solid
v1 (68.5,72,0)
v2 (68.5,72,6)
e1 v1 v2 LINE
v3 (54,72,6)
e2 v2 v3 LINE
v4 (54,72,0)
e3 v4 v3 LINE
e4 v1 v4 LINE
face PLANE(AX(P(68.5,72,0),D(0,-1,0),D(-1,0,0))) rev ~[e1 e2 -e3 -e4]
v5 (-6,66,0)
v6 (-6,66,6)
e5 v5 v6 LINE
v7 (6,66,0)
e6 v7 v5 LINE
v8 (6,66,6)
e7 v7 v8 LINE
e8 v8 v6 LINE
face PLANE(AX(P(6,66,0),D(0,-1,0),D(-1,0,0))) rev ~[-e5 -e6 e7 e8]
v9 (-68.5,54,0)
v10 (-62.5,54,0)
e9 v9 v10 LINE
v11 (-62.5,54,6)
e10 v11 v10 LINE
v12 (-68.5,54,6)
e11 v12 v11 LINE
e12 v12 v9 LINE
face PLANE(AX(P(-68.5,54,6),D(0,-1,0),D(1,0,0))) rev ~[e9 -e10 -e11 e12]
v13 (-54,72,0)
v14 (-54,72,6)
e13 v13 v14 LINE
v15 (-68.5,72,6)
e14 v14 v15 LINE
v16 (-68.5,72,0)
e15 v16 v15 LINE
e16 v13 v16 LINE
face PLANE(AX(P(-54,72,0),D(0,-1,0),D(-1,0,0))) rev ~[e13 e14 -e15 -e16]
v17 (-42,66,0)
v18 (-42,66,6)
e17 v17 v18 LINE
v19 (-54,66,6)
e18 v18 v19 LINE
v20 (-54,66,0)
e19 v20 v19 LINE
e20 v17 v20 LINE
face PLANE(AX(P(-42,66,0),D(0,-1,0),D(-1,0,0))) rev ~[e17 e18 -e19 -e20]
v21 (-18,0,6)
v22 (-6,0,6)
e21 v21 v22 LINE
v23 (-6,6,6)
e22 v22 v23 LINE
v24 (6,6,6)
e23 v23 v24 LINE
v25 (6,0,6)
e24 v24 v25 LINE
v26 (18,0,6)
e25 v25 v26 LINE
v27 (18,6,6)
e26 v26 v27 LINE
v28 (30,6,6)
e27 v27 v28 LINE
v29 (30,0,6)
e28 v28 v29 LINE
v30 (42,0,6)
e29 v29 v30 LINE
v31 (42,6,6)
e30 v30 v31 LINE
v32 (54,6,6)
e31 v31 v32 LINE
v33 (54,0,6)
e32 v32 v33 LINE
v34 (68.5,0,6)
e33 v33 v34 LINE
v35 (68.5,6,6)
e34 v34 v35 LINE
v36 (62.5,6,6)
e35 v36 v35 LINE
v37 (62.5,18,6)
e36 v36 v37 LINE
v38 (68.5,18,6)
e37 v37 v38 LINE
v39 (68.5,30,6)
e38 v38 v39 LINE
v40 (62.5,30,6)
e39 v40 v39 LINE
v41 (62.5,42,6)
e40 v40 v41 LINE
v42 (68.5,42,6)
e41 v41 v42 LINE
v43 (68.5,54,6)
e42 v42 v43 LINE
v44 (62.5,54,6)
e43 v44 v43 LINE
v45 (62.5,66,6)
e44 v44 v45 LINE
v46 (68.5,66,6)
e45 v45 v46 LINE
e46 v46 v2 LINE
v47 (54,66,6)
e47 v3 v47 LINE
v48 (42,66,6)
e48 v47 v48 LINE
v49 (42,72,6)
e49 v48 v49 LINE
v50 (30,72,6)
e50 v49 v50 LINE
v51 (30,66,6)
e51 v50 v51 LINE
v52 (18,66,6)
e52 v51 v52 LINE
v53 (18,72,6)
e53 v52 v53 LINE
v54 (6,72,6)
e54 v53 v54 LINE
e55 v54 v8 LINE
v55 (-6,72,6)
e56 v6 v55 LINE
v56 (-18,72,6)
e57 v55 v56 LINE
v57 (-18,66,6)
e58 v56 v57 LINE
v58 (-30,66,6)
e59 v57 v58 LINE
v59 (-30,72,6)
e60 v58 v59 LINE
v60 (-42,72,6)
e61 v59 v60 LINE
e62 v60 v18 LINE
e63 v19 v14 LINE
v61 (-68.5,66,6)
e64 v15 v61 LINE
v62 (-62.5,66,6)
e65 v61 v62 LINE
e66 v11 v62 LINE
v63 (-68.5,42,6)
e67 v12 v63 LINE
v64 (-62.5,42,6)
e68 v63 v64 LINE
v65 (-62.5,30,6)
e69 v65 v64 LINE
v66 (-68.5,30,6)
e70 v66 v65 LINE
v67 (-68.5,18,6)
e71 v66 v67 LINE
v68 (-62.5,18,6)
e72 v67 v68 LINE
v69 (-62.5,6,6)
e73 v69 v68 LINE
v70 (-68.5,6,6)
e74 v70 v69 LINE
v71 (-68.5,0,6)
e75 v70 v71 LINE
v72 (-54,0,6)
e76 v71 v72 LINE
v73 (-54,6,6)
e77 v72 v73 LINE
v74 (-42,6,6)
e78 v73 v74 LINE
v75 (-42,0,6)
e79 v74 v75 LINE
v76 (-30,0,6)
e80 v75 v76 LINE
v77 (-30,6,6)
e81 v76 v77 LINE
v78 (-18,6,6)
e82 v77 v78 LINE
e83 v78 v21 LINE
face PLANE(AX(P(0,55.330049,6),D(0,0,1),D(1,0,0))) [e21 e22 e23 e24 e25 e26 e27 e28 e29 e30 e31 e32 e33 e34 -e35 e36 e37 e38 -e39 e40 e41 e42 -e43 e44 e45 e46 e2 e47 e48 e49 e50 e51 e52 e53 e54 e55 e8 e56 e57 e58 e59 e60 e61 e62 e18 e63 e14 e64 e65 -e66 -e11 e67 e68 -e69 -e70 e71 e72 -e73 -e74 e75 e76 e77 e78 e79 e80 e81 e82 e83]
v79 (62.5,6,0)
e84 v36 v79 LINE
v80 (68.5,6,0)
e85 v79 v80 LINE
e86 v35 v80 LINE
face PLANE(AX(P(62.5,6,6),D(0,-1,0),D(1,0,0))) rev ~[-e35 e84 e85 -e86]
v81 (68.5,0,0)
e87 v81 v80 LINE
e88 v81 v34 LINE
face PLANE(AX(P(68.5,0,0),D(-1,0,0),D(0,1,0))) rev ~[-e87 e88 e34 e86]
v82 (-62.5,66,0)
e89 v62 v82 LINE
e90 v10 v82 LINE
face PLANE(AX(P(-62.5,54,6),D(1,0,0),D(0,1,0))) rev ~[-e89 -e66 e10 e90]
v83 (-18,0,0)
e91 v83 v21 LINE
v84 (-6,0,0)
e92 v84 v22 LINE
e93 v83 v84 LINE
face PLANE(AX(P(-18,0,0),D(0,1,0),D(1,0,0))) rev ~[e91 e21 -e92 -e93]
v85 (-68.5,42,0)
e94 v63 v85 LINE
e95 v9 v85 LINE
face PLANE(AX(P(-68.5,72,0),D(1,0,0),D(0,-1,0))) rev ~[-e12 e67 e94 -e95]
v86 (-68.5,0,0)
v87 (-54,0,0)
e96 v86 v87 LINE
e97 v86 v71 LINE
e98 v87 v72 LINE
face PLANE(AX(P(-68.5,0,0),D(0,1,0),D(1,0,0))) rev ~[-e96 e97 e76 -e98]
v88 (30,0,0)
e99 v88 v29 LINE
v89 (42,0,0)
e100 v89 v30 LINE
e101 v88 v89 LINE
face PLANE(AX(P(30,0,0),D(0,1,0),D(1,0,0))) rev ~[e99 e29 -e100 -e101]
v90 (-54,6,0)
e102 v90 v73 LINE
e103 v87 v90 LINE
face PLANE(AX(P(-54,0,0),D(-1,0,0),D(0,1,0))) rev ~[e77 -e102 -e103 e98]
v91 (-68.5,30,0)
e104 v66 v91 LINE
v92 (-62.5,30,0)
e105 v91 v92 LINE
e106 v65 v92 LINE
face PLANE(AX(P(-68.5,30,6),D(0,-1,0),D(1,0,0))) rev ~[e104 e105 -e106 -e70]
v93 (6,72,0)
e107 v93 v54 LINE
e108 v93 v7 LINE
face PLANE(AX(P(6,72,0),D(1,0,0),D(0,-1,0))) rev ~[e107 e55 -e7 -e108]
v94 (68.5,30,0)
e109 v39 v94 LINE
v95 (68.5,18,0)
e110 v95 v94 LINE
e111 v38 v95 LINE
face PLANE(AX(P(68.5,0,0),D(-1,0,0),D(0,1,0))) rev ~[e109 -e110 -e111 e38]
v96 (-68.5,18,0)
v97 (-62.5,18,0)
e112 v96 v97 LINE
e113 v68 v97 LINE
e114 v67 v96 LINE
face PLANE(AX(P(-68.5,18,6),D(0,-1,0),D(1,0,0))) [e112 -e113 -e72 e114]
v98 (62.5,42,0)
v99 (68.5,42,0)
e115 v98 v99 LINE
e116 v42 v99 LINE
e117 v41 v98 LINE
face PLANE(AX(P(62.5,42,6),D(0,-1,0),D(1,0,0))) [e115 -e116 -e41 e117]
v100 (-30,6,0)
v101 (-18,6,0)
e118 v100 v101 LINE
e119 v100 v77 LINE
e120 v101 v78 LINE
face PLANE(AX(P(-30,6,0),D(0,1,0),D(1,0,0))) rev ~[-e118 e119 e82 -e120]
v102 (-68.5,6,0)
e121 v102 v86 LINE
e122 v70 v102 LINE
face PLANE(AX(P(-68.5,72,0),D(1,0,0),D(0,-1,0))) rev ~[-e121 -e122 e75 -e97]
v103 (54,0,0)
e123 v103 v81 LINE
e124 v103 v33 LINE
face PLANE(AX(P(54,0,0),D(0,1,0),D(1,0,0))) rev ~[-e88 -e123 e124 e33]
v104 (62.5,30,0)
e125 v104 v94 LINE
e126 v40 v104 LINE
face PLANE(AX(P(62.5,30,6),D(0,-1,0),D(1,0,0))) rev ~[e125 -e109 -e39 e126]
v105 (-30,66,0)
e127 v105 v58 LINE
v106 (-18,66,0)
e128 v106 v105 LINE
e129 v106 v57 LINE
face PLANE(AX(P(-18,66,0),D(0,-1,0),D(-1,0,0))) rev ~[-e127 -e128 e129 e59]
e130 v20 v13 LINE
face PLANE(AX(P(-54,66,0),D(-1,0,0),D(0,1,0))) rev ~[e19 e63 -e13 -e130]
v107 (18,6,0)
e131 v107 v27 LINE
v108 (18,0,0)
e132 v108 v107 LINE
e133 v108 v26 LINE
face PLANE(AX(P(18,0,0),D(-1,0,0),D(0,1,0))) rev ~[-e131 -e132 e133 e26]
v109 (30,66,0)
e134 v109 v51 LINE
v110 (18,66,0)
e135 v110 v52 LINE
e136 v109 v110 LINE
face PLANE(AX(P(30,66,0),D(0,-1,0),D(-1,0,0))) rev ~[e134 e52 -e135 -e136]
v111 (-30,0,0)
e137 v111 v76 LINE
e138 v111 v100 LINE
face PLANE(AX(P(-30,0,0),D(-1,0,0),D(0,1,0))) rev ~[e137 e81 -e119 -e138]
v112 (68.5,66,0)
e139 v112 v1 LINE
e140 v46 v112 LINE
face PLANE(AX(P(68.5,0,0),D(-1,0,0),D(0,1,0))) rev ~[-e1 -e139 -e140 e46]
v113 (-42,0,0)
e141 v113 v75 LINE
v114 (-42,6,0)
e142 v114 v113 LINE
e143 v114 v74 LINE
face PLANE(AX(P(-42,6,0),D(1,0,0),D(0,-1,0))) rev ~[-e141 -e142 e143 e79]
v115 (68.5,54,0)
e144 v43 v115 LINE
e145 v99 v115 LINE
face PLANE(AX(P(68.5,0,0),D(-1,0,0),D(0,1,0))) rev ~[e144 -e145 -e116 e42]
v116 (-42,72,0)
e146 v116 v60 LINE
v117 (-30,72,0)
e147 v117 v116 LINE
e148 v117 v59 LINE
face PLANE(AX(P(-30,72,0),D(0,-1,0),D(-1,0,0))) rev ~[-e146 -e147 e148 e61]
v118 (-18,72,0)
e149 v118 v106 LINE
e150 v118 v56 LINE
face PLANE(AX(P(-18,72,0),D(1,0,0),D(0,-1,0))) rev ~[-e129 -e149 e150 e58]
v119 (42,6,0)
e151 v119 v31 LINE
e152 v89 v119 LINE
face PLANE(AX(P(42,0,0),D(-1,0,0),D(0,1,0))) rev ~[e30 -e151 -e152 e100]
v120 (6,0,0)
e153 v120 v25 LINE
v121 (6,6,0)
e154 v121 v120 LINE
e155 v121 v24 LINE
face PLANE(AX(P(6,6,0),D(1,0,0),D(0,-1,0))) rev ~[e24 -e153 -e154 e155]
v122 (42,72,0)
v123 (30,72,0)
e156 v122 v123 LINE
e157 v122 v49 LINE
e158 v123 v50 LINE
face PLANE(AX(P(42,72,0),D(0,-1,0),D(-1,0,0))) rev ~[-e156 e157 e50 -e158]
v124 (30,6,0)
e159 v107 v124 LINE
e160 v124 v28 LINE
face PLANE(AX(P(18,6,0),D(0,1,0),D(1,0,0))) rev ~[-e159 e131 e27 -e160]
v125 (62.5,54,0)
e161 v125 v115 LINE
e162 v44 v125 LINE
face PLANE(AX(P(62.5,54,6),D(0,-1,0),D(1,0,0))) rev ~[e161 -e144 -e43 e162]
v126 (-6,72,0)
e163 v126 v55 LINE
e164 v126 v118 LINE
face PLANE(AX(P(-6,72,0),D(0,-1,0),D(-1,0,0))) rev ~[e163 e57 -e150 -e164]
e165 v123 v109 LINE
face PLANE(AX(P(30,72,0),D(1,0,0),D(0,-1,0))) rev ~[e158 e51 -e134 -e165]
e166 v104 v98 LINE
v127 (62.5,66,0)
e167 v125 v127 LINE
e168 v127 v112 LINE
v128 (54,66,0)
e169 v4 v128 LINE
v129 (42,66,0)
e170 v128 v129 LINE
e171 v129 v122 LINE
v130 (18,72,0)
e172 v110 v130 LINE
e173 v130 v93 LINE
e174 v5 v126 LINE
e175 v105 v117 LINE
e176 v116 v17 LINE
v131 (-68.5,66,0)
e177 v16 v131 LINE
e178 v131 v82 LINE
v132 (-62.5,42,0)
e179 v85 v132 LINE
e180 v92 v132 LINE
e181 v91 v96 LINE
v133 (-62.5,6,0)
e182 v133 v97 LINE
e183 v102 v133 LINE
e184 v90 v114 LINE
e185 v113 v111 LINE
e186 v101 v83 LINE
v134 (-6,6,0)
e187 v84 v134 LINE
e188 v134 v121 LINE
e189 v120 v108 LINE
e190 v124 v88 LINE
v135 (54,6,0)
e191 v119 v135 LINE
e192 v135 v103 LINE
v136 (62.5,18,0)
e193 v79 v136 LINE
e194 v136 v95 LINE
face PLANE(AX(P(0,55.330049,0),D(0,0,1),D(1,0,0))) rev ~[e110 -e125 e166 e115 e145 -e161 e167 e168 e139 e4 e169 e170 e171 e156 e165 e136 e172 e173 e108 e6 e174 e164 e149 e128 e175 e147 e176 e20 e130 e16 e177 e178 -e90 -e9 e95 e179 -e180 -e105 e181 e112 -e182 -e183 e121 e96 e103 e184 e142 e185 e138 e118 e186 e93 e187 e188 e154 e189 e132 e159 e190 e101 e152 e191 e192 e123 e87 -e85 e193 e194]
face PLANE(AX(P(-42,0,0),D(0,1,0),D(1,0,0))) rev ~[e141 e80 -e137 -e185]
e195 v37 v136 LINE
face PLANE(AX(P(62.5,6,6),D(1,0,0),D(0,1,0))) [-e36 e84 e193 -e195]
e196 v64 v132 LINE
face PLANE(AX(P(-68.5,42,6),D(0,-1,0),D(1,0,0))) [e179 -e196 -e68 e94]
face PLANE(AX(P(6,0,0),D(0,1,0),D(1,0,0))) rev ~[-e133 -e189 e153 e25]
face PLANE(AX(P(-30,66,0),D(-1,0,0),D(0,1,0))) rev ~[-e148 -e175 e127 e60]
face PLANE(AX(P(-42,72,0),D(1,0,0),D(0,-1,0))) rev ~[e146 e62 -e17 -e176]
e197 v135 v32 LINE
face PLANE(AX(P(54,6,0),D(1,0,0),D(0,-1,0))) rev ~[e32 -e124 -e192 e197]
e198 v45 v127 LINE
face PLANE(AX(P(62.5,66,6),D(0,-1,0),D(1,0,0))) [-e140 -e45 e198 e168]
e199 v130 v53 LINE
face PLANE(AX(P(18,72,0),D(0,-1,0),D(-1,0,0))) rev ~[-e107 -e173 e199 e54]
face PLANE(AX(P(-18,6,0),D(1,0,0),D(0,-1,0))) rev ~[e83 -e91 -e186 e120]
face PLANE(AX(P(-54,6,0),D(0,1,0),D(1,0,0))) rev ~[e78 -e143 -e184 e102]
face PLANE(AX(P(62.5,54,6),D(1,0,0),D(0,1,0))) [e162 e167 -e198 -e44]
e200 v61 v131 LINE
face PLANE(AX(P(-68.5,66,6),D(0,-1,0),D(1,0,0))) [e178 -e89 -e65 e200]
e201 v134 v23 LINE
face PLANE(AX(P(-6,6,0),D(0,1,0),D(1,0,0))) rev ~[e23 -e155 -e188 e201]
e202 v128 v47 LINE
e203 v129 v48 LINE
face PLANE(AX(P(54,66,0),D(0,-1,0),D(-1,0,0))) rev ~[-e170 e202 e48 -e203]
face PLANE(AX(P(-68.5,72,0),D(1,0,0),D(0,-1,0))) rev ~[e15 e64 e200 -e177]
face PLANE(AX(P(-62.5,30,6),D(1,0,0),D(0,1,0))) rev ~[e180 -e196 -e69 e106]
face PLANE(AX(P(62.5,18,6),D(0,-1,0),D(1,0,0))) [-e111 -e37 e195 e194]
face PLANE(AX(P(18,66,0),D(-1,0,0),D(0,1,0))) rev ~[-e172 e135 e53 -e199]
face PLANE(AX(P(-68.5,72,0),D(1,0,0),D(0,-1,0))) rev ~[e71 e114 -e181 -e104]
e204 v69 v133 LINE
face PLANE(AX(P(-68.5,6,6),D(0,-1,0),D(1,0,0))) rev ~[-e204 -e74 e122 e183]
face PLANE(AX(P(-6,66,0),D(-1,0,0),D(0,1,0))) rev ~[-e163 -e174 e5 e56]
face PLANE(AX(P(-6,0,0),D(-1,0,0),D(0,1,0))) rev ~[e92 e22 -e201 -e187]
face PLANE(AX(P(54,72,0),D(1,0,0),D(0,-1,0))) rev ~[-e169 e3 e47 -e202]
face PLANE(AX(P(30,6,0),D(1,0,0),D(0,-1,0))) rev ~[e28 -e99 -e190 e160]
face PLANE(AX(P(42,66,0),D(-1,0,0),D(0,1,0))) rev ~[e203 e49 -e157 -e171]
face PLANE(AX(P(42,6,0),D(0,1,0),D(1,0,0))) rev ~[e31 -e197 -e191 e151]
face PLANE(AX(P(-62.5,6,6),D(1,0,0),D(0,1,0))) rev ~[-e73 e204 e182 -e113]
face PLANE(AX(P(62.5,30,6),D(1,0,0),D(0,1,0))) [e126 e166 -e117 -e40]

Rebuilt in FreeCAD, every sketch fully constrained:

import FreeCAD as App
import Part
import Sketcher
from FreeCAD import Vector
Q = App.Units.Quantity


def add_polygon(sketch, points):
    """Adds a closed chain of lines whose ends are joined by coincident constraints."""
    first, n = sketch.GeometryCount, len(points)
    for a, b in zip(points, points[1:] + points[:1]):
        sketch.addGeometry(Part.LineSegment(App.Vector(*a, 0), App.Vector(*b, 0)), False)
    for i in range(n):
        sketch.addConstraint(Sketcher.Constraint("Coincident", first + i, 2, first + (i + 1) % n, 1))

doc = App.newDocument("Part")
params = doc.addObject("Spreadsheet::Sheet", "Params")
for row, (alias, value) in enumerate([
    ("sketch1_width", "12 mm"),
    ("sketch1_height", "72 mm"),
    ("sketch1_height2", "6 mm"),
    ("sketch1_width2", "14.5 mm"),
    ("pad1_length", "6 mm"),
    ("sketch2_width", "6 mm"),
    ("sketch2_height", "12 mm"),
    ("pocket1_length", "6 mm"),
], start=1):
    params.set(f"A{row}", alias)
    params.set(f"B{row}", "=" + value)
    params.setAlias(f"B{row}", alias)

body = doc.addObject("PartDesign::Body", "Body")

sketch1 = doc.addObject("Sketcher::SketchObject", "Sketch")
body.addObject(sketch1)
sketch1.AttachmentSupport = (doc.XY_Plane, [""])
sketch1.MapMode = "FlatFace"
add_polygon(sketch1, [(-68, 72), (-68, 0), (-54, 0), (-54, 6), (-42, 6), (-42, 0), (-30, 0), (-30, 6), (-18, 6), (-18, 0), (-6, 0), (-6, 6), (6, 6), (6, 0), (18, 0), (18, 6), (30, 6), (30, 0), (42, 0), (42, 6), (54, 6), (54, 0), (68, 0), (68, 72), (54, 72), (54, 66), (42, 66), (42, 72), (30, 72), (30, 66), (18, 66), (18, 72), (6, 72), (6, 66), (-6, 66), (-6, 72), (-18, 72), (-18, 66), (-30, 66), (-30, 72), (-42, 72), (-42, 66), (-54, 66), (-54, 72)])
sketch1.addConstraint([
    Sketcher.Constraint("Vertical", 0),
    Sketcher.Constraint("Horizontal", 1),
    Sketcher.Constraint("Vertical", 2),
    Sketcher.Constraint("Horizontal", 3),
    Sketcher.Constraint("Vertical", 4),
    Sketcher.Constraint("Horizontal", 5),
    Sketcher.Constraint("Vertical", 6),
    Sketcher.Constraint("Horizontal", 7),
    Sketcher.Constraint("Vertical", 8),
    Sketcher.Constraint("Horizontal", 9),
    Sketcher.Constraint("Vertical", 10),
    Sketcher.Constraint("Horizontal", 11),
    Sketcher.Constraint("Vertical", 12),
    Sketcher.Constraint("Horizontal", 13),
    Sketcher.Constraint("Vertical", 14),
    Sketcher.Constraint("Horizontal", 15),
    Sketcher.Constraint("Vertical", 16),
    Sketcher.Constraint("Horizontal", 17),
    Sketcher.Constraint("Vertical", 18),
    Sketcher.Constraint("Horizontal", 19),
    Sketcher.Constraint("Vertical", 20),
    Sketcher.Constraint("Horizontal", 21),
    Sketcher.Constraint("Vertical", 22),
    Sketcher.Constraint("Horizontal", 23),
    Sketcher.Constraint("Vertical", 24),
    Sketcher.Constraint("Horizontal", 25),
    Sketcher.Constraint("Vertical", 26),
    Sketcher.Constraint("Horizontal", 27),
    Sketcher.Constraint("Vertical", 28),
    Sketcher.Constraint("Horizontal", 29),
    Sketcher.Constraint("Vertical", 30),
    Sketcher.Constraint("Horizontal", 31),
    Sketcher.Constraint("Vertical", 32),
    Sketcher.Constraint("Horizontal", 33),
    Sketcher.Constraint("Vertical", 34),
    Sketcher.Constraint("Horizontal", 35),
    Sketcher.Constraint("Vertical", 36),
    Sketcher.Constraint("Horizontal", 37),
    Sketcher.Constraint("Vertical", 38),
    Sketcher.Constraint("Horizontal", 39),
    Sketcher.Constraint("Vertical", 40),
    Sketcher.Constraint("Horizontal", 41),
    Sketcher.Constraint("Vertical", 42),
    Sketcher.Constraint("Horizontal", 43),
    Sketcher.Constraint("Symmetric", 9, 2, 12, 2, -1, 1),
    Sketcher.Constraint("Symmetric", 5, 2, 16, 2, -1, 1),
    Sketcher.Constraint("Symmetric", 1, 2, 20, 2, -1, 1),
    Sketcher.Constraint("Symmetric", 8, 2, 13, 2, -2),
    Sketcher.Constraint("Symmetric", 4, 2, 17, 2, -2),
    Sketcher.Constraint("Symmetric", 0, 2, 21, 2, -2),
    Sketcher.Constraint("Symmetric", 31, 2, 34, 2, -2),
    Sketcher.Constraint("Symmetric", 29, 2, 36, 2, -2),
    Sketcher.Constraint("Symmetric", 27, 2, 38, 2, -2),
    Sketcher.Constraint("Symmetric", 25, 2, 40, 2, -2),
    Sketcher.Constraint("Symmetric", 23, 2, 42, 2, -2),
    Sketcher.Constraint("Horizontal", 3, 2, 6, 2),
    Sketcher.Constraint("Horizontal", 7, 2, 10, 2),
    Sketcher.Constraint("Horizontal", 11, 2, 14, 2),
    Sketcher.Constraint("Horizontal", 15, 2, 18, 2),
    Sketcher.Constraint("Horizontal", 23, 2, 26, 2),
    Sketcher.Constraint("Horizontal", 25, 2, 28, 2),
    Sketcher.Constraint("Horizontal", 27, 2, 30, 2),
    Sketcher.Constraint("Horizontal", 29, 2, 32, 2),
    Sketcher.Constraint("Vertical", 20, 2, 23, 2),
    Sketcher.Constraint("Vertical", 18, 2, 25, 2),
    Sketcher.Constraint("Vertical", 16, 2, 27, 2),
    Sketcher.Constraint("Vertical", 14, 2, 29, 2),
    Sketcher.Constraint("Vertical", 12, 2, 31, 2),
    Sketcher.Constraint("Equal", 3, 5),
    Sketcher.Constraint("Equal", 5, 7),
    Sketcher.Constraint("Equal", 7, 9),
    Sketcher.Constraint("Equal", 9, 11),
    Sketcher.Constraint("Equal", 20, 24),
    Sketcher.Constraint("DistanceX", 3, 1, 3, 2, Q("12 mm")),
    Sketcher.Constraint("DistanceY", 0, 2, 0, 1, Q("72 mm")),
    Sketcher.Constraint("DistanceY", 2, 1, 2, 2, Q("6 mm")),
    Sketcher.Constraint("DistanceX", 1, 1, 1, 2, Q("14.5 mm")),
])
sketch1.setExpression("Constraints[117]", "Params.sketch1_width")
sketch1.setExpression("Constraints[118]", "Params.sketch1_height")
sketch1.setExpression("Constraints[119]", "Params.sketch1_height2")
sketch1.setExpression("Constraints[120]", "Params.sketch1_width2")
pad1 = doc.addObject("PartDesign::Pad", "Pad")
body.addObject(pad1)
pad1.Profile = sketch1
pad1.setExpression("Length", "Params.pad1_length")

sketch2 = doc.addObject("Sketcher::SketchObject", "Sketch001")
body.addObject(sketch2)
sketch2.AttachmentSupport = (doc.XY_Plane, [""])
sketch2.MapMode = "FlatFace"
sketch2.AttachmentOffset = App.Placement(Vector(0, 0, 6), App.Rotation())
add_polygon(sketch2, [(-68, 66), (-68, 54), (-62, 54), (-62, 66)])
add_polygon(sketch2, [(-68, 18), (-68, 6), (-62, 6), (-62, 18)])
add_polygon(sketch2, [(62, 42), (62, 30), (68, 30), (68, 42)])
add_polygon(sketch2, [(62, 18), (62, 6), (68, 6), (68, 18)])
add_polygon(sketch2, [(-68, 42), (-68, 30), (-62, 30), (-62, 42)])
add_polygon(sketch2, [(62, 66), (62, 54), (68, 54), (68, 66)])
sketch2.addConstraint([
    Sketcher.Constraint("Vertical", 0),
    Sketcher.Constraint("Horizontal", 1),
    Sketcher.Constraint("Vertical", 2),
    Sketcher.Constraint("Horizontal", 3),
    Sketcher.Constraint("Vertical", 4),
    Sketcher.Constraint("Horizontal", 5),
    Sketcher.Constraint("Vertical", 6),
    Sketcher.Constraint("Horizontal", 7),
    Sketcher.Constraint("Vertical", 8),
    Sketcher.Constraint("Horizontal", 9),
    Sketcher.Constraint("Vertical", 10),
    Sketcher.Constraint("Horizontal", 11),
    Sketcher.Constraint("Vertical", 12),
    Sketcher.Constraint("Horizontal", 13),
    Sketcher.Constraint("Vertical", 14),
    Sketcher.Constraint("Horizontal", 15),
    Sketcher.Constraint("Vertical", 16),
    Sketcher.Constraint("Horizontal", 17),
    Sketcher.Constraint("Vertical", 18),
    Sketcher.Constraint("Horizontal", 19),
    Sketcher.Constraint("Vertical", 20),
    Sketcher.Constraint("Horizontal", 21),
    Sketcher.Constraint("Vertical", 22),
    Sketcher.Constraint("Horizontal", 23),
    Sketcher.Constraint("Symmetric", 5, 2, 12, 2, -2),
    Sketcher.Constraint("Symmetric", 7, 2, 14, 2, -2),
    Sketcher.Constraint("Symmetric", 9, 2, 16, 2, -2),
    Sketcher.Constraint("Symmetric", 11, 2, 18, 2, -2),
    Sketcher.Constraint("Symmetric", 1, 2, 20, 2, -2),
    Sketcher.Constraint("Symmetric", 3, 2, 22, 2, -2),
    Sketcher.Constraint("Vertical", 3, 2, 4, 2),
    Sketcher.Constraint("Vertical", 2, 2, 5, 2),
    Sketcher.Constraint("Vertical", 11, 2, 12, 2),
    Sketcher.Constraint("Vertical", 10, 2, 13, 2),
    Sketcher.Constraint("Equal", 2, 4),
    Sketcher.Constraint("Equal", 6, 8),
    Sketcher.Constraint("DistanceX", 1, 1, 1, 2, Q("6 mm")),
    Sketcher.Constraint("DistanceY", 0, 2, 0, 1, Q("12 mm")),
    Sketcher.Constraint("DistanceY", -1, 1, 0, 2, Q("54 mm")),
    Sketcher.Constraint("DistanceY", -1, 1, 4, 2, Q("6 mm")),
    Sketcher.Constraint("DistanceY", -1, 1, 8, 2, Q("30 mm")),
    Sketcher.Constraint("DistanceX", 6, 2, 8, 2, Q("125 mm")),
])
sketch2.setExpression("Constraints[60]", "Params.sketch2_width")
sketch2.setExpression("Constraints[61]", "Params.sketch2_height")
pocket1 = doc.addObject("PartDesign::Pocket", "Pocket")
body.addObject(pocket1)
pocket1.Profile = sketch2
pocket1.setExpression("Length", "Params.pocket1_length")

doc.recompute()
